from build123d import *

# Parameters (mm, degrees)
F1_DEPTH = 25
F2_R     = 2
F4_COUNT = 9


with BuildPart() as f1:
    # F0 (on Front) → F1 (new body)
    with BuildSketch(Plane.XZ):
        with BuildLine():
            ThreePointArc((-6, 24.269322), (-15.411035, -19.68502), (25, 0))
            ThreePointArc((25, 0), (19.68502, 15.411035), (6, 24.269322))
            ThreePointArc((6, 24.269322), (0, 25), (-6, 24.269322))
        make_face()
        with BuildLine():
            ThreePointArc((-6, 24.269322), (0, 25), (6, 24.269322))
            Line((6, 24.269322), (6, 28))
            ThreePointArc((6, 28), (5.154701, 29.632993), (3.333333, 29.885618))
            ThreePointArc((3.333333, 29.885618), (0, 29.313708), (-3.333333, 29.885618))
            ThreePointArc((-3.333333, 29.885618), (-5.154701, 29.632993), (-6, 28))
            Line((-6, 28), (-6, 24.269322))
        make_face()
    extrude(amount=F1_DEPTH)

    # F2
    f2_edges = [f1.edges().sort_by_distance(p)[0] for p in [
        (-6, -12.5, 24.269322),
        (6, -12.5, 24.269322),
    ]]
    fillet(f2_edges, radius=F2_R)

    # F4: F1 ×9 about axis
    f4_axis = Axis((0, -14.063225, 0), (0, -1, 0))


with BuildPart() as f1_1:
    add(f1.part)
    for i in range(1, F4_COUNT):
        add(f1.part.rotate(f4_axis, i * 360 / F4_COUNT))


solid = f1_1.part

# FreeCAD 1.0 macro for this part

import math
import FreeCAD as App
import Part
import Sketcher

V = App.Vector
Q = App.Units.Quantity


def edges_at(feature, points):
    """Names of the edges that pass closest to the given points."""
    edges = feature.Shape.Edges
    near = lambda p: min(range(len(edges)), key=lambda i: edges[i].distToShape(Part.Vertex(*p))[0])
    return sorted({f"Edge{near(p) + 1}" for p in points})

doc = App.newDocument("Part")
body = doc.addObject("PartDesign::Body", "Body")

sketch1 = doc.addObject("Sketcher::SketchObject", "Sketch")
body.addObject(sketch1)
sketch1.AttachmentSupport = (doc.XZ_Plane, [""])
sketch1.MapMode = "FlatFace"
sketch1.addGeometry([
    Part.ArcOfCircle(Part.Circle(V(0, 0, 0), V(0, 0, 1), 25), math.radians(104), math.radians(360)),
    Part.ArcOfCircle(Part.Circle(V(0, 0, 0), V(0, 0, 1), 25), math.radians(0), math.radians(76)),
    Part.LineSegment(V(6, 24.3, 0), V(6, 28, 0)),
    Part.ArcOfCircle(Part.Circle(V(4, 28, 0), V(0, 0, 1), 2), math.radians(0), math.radians(109)),
    Part.ArcOfCircle(Part.Circle(V(0, 39.3, 0), V(0, 0, 1), 10), math.radians(-109), math.radians(-71)),
    Part.ArcOfCircle(Part.Circle(V(-4, 28, 0), V(0, 0, 1), 2), math.radians(71), math.radians(180)),
    Part.LineSegment(V(-6, 28, 0), V(-6, 24.3, 0)),
], False)
sketch1.addConstraint([
    Sketcher.Constraint("Tangent", 0, 2, 1, 1),
    Sketcher.Constraint("Coincident", 1, 2, 2, 1),
    Sketcher.Constraint("Tangent", 2, 2, 3, 1),
    Sketcher.Constraint("Tangent", 3, 2, 4, 2),
    Sketcher.Constraint("Tangent", 4, 1, 5, 1),
    Sketcher.Constraint("Tangent", 5, 2, 6, 1),
    Sketcher.Constraint("Coincident", 6, 2, 0, 1),
    Sketcher.Constraint("Vertical", 2),
    Sketcher.Constraint("Vertical", 6),
    Sketcher.Constraint("Coincident", 0, 3, -1, 1),
    Sketcher.Constraint("Equal", 0, 1),
    Sketcher.Constraint("Equal", 3, 5),
    Sketcher.Constraint("Symmetric", 3, 3, 5, 3, -2),
    Sketcher.Constraint("PointOnObject", 0, 2, -1),
    Sketcher.Constraint("Radius", 0, Q("25 mm")),
    Sketcher.Constraint("Radius", 3, Q("2 mm")),
    Sketcher.Constraint("DistanceX", -1, 1, 3, 3, Q("4 mm")),
    Sketcher.Constraint("DistanceY", -1, 1, 3, 3, Q("28 mm")),
    Sketcher.Constraint("Radius", 4, Q("9.999991 mm")),
])
pad1 = doc.addObject("PartDesign::Pad", "Pad")
body.addObject(pad1)
pad1.Profile = sketch1
pad1.Length = 25
doc.recompute()

fillet = doc.addObject("PartDesign::Fillet", "Fillet")
body.addObject(fillet)
fillet.Base = (pad1, edges_at(pad1, [(-6, -12.5, 24.269), (6, -12.5, 24.269)]))
fillet.Radius = 2
body2 = doc.addObject("PartDesign::Body", "Body001")
doc.recompute()

body2.BaseFeature = body
doc.recompute()

body3 = doc.addObject("PartDesign::Body", "Body002")
body3.BaseFeature = body
body3.Placement = App.Placement(V(0, 0, 0), App.Rotation(V(0, -1, 0), 40))
boolean = doc.addObject("PartDesign::Boolean", "Boolean")
body2.addObject(boolean)
boolean.Type = "Fuse"
boolean.addObjects([body3])
doc.recompute()

body4 = doc.addObject("PartDesign::Body", "Body003")
body4.BaseFeature = body
body4.Placement = App.Placement(V(0, 0, 0), App.Rotation(V(0, -1, 0), 80))
boolean2 = doc.addObject("PartDesign::Boolean", "Boolean001")
body2.addObject(boolean2)
boolean2.Type = "Fuse"
boolean2.addObjects([body4])
doc.recompute()

body5 = doc.addObject("PartDesign::Body", "Body004")
body5.BaseFeature = body
body5.Placement = App.Placement(V(0, 0, 0), App.Rotation(V(0, -1, 0), 120))
boolean3 = doc.addObject("PartDesign::Boolean", "Boolean002")
body2.addObject(boolean3)
boolean3.Type = "Fuse"
boolean3.addObjects([body5])
doc.recompute()

body6 = doc.addObject("PartDesign::Body", "Body005")
body6.BaseFeature = body
body6.Placement = App.Placement(V(0, 0, 0), App.Rotation(V(0, -1, 0), 160))
boolean4 = doc.addObject("PartDesign::Boolean", "Boolean003")
body2.addObject(boolean4)
boolean4.Type = "Fuse"
boolean4.addObjects([body6])
doc.recompute()

body7 = doc.addObject("PartDesign::Body", "Body006")
body7.BaseFeature = body
body7.Placement = App.Placement(V(0, 0, 0), App.Rotation(V(0, -1, 0), 200))
boolean5 = doc.addObject("PartDesign::Boolean", "Boolean004")
body2.addObject(boolean5)
boolean5.Type = "Fuse"
boolean5.addObjects([body7])
doc.recompute()

body8 = doc.addObject("PartDesign::Body", "Body007")
body8.BaseFeature = body
body8.Placement = App.Placement(V(0, 0, 0), App.Rotation(V(0, -1, 0), 240))
boolean6 = doc.addObject("PartDesign::Boolean", "Boolean005")
body2.addObject(boolean6)
boolean6.Type = "Fuse"
boolean6.addObjects([body8])
doc.recompute()

body9 = doc.addObject("PartDesign::Body", "Body008")
body9.BaseFeature = body
body9.Placement = App.Placement(V(0, 0, 0), App.Rotation(V(0, -1, 0), 280))
boolean7 = doc.addObject("PartDesign::Boolean", "Boolean006")
body2.addObject(boolean7)
boolean7.Type = "Fuse"
boolean7.addObjects([body9])
doc.recompute()

body.Placement = App.Placement(V(0, 0, 0), App.Rotation(V(0, -1, 0), 320))
boolean8 = doc.addObject("PartDesign::Boolean", "Boolean007")
body2.addObject(boolean8)
boolean8.Type = "Fuse"
boolean8.addObjects([body])

doc.recompute()
